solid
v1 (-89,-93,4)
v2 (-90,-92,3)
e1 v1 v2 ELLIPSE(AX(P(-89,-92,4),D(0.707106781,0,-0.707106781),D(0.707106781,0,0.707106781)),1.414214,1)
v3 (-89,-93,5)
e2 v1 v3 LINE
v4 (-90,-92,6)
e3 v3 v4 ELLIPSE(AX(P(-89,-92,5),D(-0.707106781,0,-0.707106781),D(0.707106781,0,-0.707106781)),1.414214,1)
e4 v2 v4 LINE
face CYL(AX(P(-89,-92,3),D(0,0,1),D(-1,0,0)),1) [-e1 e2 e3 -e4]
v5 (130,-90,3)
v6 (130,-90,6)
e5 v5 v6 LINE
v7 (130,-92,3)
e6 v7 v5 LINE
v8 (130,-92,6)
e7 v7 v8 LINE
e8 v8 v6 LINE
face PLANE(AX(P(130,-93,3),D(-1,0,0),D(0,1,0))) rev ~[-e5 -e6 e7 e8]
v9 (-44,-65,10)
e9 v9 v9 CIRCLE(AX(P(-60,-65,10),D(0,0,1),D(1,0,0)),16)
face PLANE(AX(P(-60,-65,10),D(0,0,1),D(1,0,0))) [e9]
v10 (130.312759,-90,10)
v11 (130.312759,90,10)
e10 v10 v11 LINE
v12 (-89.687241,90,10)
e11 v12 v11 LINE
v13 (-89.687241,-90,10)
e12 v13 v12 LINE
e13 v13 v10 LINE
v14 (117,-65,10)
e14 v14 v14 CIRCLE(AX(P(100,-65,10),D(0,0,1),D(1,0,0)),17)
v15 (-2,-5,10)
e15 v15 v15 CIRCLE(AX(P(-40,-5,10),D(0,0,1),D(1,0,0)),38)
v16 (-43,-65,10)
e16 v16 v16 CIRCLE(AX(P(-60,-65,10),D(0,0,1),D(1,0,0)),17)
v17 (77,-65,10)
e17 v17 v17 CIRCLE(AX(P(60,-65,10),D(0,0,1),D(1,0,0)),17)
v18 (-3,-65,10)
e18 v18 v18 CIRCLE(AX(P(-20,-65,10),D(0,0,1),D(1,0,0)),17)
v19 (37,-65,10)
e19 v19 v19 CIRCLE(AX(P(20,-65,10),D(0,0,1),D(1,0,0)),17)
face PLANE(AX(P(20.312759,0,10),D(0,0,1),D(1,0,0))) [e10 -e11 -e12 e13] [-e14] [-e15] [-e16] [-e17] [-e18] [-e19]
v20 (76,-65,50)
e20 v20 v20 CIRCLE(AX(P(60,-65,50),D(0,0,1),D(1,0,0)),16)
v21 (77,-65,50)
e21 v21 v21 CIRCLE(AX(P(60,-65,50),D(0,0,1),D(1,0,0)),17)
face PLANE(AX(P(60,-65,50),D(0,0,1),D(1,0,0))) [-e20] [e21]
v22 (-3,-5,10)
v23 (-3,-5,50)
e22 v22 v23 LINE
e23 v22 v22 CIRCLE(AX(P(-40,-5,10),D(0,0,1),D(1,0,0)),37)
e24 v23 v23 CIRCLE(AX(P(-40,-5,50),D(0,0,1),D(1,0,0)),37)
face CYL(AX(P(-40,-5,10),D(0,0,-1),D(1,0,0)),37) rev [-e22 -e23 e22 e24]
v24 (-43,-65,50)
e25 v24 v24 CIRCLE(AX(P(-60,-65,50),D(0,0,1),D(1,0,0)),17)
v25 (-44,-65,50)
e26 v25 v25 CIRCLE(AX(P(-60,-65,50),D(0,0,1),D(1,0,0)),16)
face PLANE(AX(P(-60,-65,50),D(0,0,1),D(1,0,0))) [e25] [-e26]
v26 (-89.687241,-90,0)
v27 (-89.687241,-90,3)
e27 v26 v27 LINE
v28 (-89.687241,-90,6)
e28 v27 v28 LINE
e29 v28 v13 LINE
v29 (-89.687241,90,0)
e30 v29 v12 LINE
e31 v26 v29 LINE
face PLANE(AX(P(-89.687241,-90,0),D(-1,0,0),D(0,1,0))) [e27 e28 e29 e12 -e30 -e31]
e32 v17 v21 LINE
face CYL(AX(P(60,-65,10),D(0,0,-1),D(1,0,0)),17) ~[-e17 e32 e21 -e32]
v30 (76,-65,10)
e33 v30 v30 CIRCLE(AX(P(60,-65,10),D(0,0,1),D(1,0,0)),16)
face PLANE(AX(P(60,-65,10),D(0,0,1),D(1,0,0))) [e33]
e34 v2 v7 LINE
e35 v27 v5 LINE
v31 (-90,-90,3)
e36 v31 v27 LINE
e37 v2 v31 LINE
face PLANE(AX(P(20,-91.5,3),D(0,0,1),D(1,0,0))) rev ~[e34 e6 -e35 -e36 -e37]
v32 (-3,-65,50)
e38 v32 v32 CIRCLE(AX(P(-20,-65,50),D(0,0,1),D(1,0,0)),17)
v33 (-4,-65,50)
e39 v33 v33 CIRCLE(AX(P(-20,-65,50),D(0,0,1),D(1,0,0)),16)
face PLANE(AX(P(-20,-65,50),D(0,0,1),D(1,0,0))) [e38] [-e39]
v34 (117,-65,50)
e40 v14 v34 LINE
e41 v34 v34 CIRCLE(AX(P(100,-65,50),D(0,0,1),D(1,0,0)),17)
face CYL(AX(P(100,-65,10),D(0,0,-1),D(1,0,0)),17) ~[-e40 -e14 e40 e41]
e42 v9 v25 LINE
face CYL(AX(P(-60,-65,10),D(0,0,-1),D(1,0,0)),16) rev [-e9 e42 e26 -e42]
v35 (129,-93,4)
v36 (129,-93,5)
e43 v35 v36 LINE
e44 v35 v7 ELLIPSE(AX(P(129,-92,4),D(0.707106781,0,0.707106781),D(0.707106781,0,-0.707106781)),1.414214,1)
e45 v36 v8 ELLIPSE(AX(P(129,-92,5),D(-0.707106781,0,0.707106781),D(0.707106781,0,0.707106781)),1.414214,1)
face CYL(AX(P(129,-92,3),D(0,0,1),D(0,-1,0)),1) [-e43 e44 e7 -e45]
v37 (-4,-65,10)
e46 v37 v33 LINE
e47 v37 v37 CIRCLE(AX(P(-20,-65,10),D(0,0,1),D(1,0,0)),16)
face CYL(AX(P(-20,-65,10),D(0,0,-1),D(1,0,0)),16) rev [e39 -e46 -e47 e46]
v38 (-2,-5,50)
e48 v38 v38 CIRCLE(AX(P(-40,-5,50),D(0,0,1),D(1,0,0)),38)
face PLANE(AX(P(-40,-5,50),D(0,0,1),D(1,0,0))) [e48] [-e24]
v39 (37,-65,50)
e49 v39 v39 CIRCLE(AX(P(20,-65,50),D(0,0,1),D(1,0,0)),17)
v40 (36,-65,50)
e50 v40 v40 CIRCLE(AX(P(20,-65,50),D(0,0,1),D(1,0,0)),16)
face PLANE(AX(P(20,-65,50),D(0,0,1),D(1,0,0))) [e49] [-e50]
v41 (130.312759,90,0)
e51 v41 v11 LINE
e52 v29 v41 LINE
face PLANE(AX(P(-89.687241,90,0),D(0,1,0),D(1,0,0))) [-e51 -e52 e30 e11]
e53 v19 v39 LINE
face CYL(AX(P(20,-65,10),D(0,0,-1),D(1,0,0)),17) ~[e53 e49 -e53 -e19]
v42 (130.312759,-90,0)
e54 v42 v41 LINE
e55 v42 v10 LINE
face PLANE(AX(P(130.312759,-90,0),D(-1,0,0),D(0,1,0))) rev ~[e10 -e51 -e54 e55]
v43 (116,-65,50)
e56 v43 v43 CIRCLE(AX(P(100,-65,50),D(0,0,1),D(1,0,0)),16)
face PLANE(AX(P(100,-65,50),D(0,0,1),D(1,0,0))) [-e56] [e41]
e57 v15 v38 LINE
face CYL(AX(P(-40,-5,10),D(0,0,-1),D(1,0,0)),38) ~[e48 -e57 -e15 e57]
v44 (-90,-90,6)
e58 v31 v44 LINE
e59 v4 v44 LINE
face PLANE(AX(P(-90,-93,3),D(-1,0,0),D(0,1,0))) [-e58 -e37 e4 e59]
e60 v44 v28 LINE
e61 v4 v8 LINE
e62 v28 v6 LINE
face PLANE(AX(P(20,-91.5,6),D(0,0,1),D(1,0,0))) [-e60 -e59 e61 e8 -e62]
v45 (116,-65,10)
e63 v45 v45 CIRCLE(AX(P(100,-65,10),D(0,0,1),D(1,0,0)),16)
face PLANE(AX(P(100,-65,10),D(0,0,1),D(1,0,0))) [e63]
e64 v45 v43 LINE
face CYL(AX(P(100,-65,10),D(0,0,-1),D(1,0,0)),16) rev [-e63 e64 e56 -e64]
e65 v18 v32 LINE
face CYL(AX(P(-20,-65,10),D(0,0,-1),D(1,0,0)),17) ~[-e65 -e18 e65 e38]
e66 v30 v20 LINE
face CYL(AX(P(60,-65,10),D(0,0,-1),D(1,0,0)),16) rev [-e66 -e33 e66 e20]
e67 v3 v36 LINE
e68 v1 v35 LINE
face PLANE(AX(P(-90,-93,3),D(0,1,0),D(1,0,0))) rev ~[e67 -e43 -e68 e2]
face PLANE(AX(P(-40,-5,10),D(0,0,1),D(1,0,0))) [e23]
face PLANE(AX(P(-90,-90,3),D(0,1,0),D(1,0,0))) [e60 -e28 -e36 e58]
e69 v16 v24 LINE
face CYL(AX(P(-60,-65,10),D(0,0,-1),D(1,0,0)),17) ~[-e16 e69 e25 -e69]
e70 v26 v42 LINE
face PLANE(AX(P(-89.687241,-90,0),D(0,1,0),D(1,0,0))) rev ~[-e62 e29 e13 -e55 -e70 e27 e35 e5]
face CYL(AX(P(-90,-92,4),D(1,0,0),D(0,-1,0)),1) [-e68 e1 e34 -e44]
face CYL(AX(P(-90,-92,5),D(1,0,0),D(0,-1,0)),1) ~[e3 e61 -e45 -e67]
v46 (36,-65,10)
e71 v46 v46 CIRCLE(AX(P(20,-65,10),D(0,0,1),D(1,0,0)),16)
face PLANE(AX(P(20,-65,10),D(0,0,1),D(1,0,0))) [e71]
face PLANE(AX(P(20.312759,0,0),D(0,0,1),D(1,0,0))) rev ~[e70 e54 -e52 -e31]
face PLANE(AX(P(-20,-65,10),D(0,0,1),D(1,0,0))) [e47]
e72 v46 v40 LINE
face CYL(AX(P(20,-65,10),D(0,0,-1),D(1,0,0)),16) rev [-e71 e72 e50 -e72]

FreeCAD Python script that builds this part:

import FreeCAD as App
import Part
import Sketcher

V = App.Vector
Q = App.Units.Quantity


def edges_at(feature, points):
    """Names of the edges that pass closest to the given points."""
    edges = feature.Shape.Edges
    near = lambda p: min(range(len(edges)), key=lambda i: edges[i].distToShape(Part.Vertex(*p))[0])
    return sorted({f"Edge{near(p) + 1}" for p in points})

doc = App.newDocument("Part")
body = doc.addObject("PartDesign::Body", "Body")

sketch1 = body.newObject("Sketcher::SketchObject", "Sketch")
sketch1.AttachmentSupport = (doc.getObject("XY_Plane"), [""])
sketch1.MapMode = "FlatFace"
sketch1.addGeometry([
    Part.LineSegment(V(-90, 90, 0), V(-90, -90, 0)),
    Part.LineSegment(V(-90, -90, 0), V(130, -90, 0)),
    Part.LineSegment(V(130, -90, 0), V(130, 90, 0)),
    Part.LineSegment(V(130, 90, 0), V(-90, 90, 0)),
], False)
sketch1.addConstraint([
    Sketcher.Constraint("Coincident", 0, 2, 1, 1),
    Sketcher.Constraint("Coincident", 1, 2, 2, 1),
    Sketcher.Constraint("Coincident", 2, 2, 3, 1),
    Sketcher.Constraint("Coincident", 3, 2, 0, 1),
    Sketcher.Constraint("Vertical", 0),
    Sketcher.Constraint("Horizontal", 1),
    Sketcher.Constraint("Vertical", 2),
    Sketcher.Constraint("Horizontal", 3),
    Sketcher.Constraint("DistanceX", 1, 1, 1, 2, Q("220 mm")),
    Sketcher.Constraint("DistanceY", 0, 2, 0, 1, Q("180 mm")),
    Sketcher.Constraint("DistanceY", 0, 2, -1, 1, Q("90 mm")),
    Sketcher.Constraint("DistanceX", 0, 2, -1, 1, Q("89.687241 mm")),
])
pad1 = body.newObject("PartDesign::Pad", "Pad")
pad1.Profile = sketch1
pad1.Length = 10

sketch2 = body.newObject("Sketcher::SketchObject", "Sketch001")
sketch2.AttachmentSupport = (doc.getObject("XY_Plane"), [""])
sketch2.MapMode = "FlatFace"
sketch2.AttachmentOffset = App.Placement(V(0, 0, 3), App.Rotation())
sketch2.addGeometry([
    Part.LineSegment(V(-90, -90, 0), V(-90, -93, 0)),
    Part.LineSegment(V(-90, -93, 0), V(130, -93, 0)),
    Part.LineSegment(V(130, -93, 0), V(130, -90, 0)),
    Part.LineSegment(V(130, -90, 0), V(-90, -90, 0)),
], False)
sketch2.addConstraint([
    Sketcher.Constraint("Coincident", 0, 2, 1, 1),
    Sketcher.Constraint("Coincident", 1, 2, 2, 1),
    Sketcher.Constraint("Coincident", 2, 2, 3, 1),
    Sketcher.Constraint("Coincident", 3, 2, 0, 1),
    Sketcher.Constraint("Vertical", 0),
    Sketcher.Constraint("Horizontal", 1),
    Sketcher.Constraint("Vertical", 2),
    Sketcher.Constraint("Horizontal", 3),
    Sketcher.Constraint("DistanceX", 1, 1, 1, 2, Q("220 mm")),
    Sketcher.Constraint("DistanceY", 0, 2, 0, 1, Q("3 mm")),
    Sketcher.Constraint("DistanceX", 0, 2, -1, 1, Q("90 mm")),
    Sketcher.Constraint("DistanceY", 0, 2, -1, 1, Q("93 mm")),
])
pad2 = body.newObject("PartDesign::Pad", "Pad001")
pad2.Profile = sketch2
pad2.Length = 3
doc.recompute()

fillet = body.newObject("PartDesign::Fillet", "Fillet")
fillet.Base = (pad2, edges_at(pad2, [
    (20, -93, 3),
    (130, -93, 4.5),
    (20, -93, 6),
    (-90, -93, 4.5),
]))
fillet.Radius = 1

sketch3 = body.newObject("Sketcher::SketchObject", "Sketch002")
sketch3.AttachmentSupport = (doc.getObject("XY_Plane"), [""])
sketch3.MapMode = "FlatFace"
sketch3.AttachmentOffset = App.Placement(V(0, 0, 10), App.Rotation())
sketch3.addGeometry(Part.Circle(V(-60, -65, 0), V(0, 0, 1), 17), False)
sketch3.addConstraint([
    Sketcher.Constraint("Diameter", 0, Q("34 mm")),
    Sketcher.Constraint("DistanceX", 0, 3, -1, 1, Q("60 mm")),
    Sketcher.Constraint("DistanceY", 0, 3, -1, 1, Q("65 mm")),
])
pad3 = body.newObject("PartDesign::Pad", "Pad002")
pad3.Profile = sketch3
pad3.Length = 40

sketch4 = body.newObject("Sketcher::SketchObject", "Sketch003")
sketch4.AttachmentSupport = (doc.getObject("XY_Plane"), [""])
sketch4.MapMode = "FlatFace"
sketch4.AttachmentOffset = App.Placement(V(0, 0, 10), App.Rotation())
sketch4.addGeometry(Part.Circle(V(-60, -65, 0), V(0, 0, 1), 16), False)
sketch4.addConstraint([
    Sketcher.Constraint("Diameter", 0, Q("32 mm")),
    Sketcher.Constraint("DistanceX", 0, 3, -1, 1, Q("60 mm")),
    Sketcher.Constraint("DistanceY", 0, 3, -1, 1, Q("65 mm")),
])
pocket1 = body.newObject("PartDesign::Pocket", "Pocket")
pocket1.Profile = sketch4
pocket1.Length = 40
pocket1.Reversed = True

sketch5 = body.newObject("Sketcher::SketchObject", "Sketch004")
sketch5.AttachmentSupport = (doc.getObject("XY_Plane"), [""])
sketch5.MapMode = "FlatFace"
sketch5.AttachmentOffset = App.Placement(V(0, 0, 10), App.Rotation())
sketch5.addGeometry(Part.Circle(V(-20, -65, 0), V(0, 0, 1), 17), False)
sketch5.addConstraint([
    Sketcher.Constraint("Diameter", 0, Q("34 mm")),
    Sketcher.Constraint("DistanceX", 0, 3, -1, 1, Q("20 mm")),
    Sketcher.Constraint("DistanceY", 0, 3, -1, 1, Q("65 mm")),
])
pad4 = body.newObject("PartDesign::Pad", "Pad003")
pad4.Profile = sketch5
pad4.Length = 40

sketch6 = body.newObject("Sketcher::SketchObject", "Sketch005")
sketch6.AttachmentSupport = (doc.getObject("XY_Plane"), [""])
sketch6.MapMode = "FlatFace"
sketch6.AttachmentOffset = App.Placement(V(0, 0, 10), App.Rotation())
sketch6.addGeometry(Part.Circle(V(20, -65, 0), V(0, 0, 1), 17), False)
sketch6.addConstraint([
    Sketcher.Constraint("Diameter", 0, Q("34 mm")),
    Sketcher.Constraint("DistanceX", -1, 1, 0, 3, Q("20 mm")),
    Sketcher.Constraint("DistanceY", 0, 3, -1, 1, Q("65 mm")),
])
pad5 = body.newObject("PartDesign::Pad", "Pad004")
pad5.Profile = sketch6
pad5.Length = 40

sketch7 = body.newObject("Sketcher::SketchObject", "Sketch006")
sketch7.AttachmentSupport = (doc.getObject("XY_Plane"), [""])
sketch7.MapMode = "FlatFace"
sketch7.AttachmentOffset = App.Placement(V(0, 0, 10), App.Rotation())
sketch7.addGeometry(Part.Circle(V(60, -65, 0), V(0, 0, 1), 17), False)
sketch7.addConstraint([
    Sketcher.Constraint("Diameter", 0, Q("34 mm")),
    Sketcher.Constraint("DistanceX", -1, 1, 0, 3, Q("60 mm")),
    Sketcher.Constraint("DistanceY", 0, 3, -1, 1, Q("65 mm")),
])
pad6 = body.newObject("PartDesign::Pad", "Pad005")
pad6.Profile = sketch7
pad6.Length = 40

sketch8 = body.newObject("Sketcher::SketchObject", "Sketch007")
sketch8.AttachmentSupport = (doc.getObject("XY_Plane"), [""])
sketch8.MapMode = "FlatFace"
sketch8.AttachmentOffset = App.Placement(V(0, 0, 10), App.Rotation())
sketch8.addGeometry(Part.Circle(V(100, -65, 0), V(0, 0, 1), 17), False)
sketch8.addConstraint([
    Sketcher.Constraint("Diameter", 0, Q("34 mm")),
    Sketcher.Constraint("DistanceX", -1, 1, 0, 3, Q("100 mm")),
    Sketcher.Constraint("DistanceY", 0, 3, -1, 1, Q("65 mm")),
])
pad7 = body.newObject("PartDesign::Pad", "Pad006")
pad7.Profile = sketch8
pad7.Length = 40

sketch9 = body.newObject("Sketcher::SketchObject", "Sketch008")
sketch9.AttachmentSupport = (doc.getObject("XY_Plane"), [""])
sketch9.MapMode = "FlatFace"
sketch9.AttachmentOffset = App.Placement(V(0, 0, 10), App.Rotation())
sketch9.addGeometry(Part.Circle(V(-20, -65, 0), V(0, 0, 1), 16), False)
sketch9.addConstraint([
    Sketcher.Constraint("Diameter", 0, Q("32 mm")),
    Sketcher.Constraint("DistanceX", 0, 3, -1, 1, Q("20 mm")),
    Sketcher.Constraint("DistanceY", 0, 3, -1, 1, Q("65 mm")),
])
pocket2 = body.newObject("PartDesign::Pocket", "Pocket001")
pocket2.Profile = sketch9
pocket2.Length = 40
pocket2.Reversed = True

sketch10 = body.newObject("Sketcher::SketchObject", "Sketch009")
sketch10.AttachmentSupport = (doc.getObject("XY_Plane"), [""])
sketch10.MapMode = "FlatFace"
sketch10.AttachmentOffset = App.Placement(V(0, 0, 10), App.Rotation())
sketch10.addGeometry(Part.Circle(V(20, -65, 0), V(0, 0, 1), 16), False)
sketch10.addConstraint([
    Sketcher.Constraint("Diameter", 0, Q("32 mm")),
    Sketcher.Constraint("DistanceX", -1, 1, 0, 3, Q("20 mm")),
    Sketcher.Constraint("DistanceY", 0, 3, -1, 1, Q("65 mm")),
])
pocket3 = body.newObject("PartDesign::Pocket", "Pocket002")
pocket3.Profile = sketch10
pocket3.Length = 40
pocket3.Reversed = True

sketch11 = body.newObject("Sketcher::SketchObject", "Sketch010")
sketch11.AttachmentSupport = (doc.getObject("XY_Plane"), [""])
sketch11.MapMode = "FlatFace"
sketch11.AttachmentOffset = App.Placement(V(0, 0, 10), App.Rotation())
sketch11.addGeometry(Part.Circle(V(60, -65, 0), V(0, 0, 1), 16), False)
sketch11.addConstraint([
    Sketcher.Constraint("Diameter", 0, Q("32 mm")),
    Sketcher.Constraint("DistanceX", -1, 1, 0, 3, Q("60 mm")),
    Sketcher.Constraint("DistanceY", 0, 3, -1, 1, Q("65 mm")),
])
pocket4 = body.newObject("PartDesign::Pocket", "Pocket003")
pocket4.Profile = sketch11
pocket4.Length = 40
pocket4.Reversed = True

sketch12 = body.newObject("Sketcher::SketchObject", "Sketch011")
sketch12.AttachmentSupport = (doc.getObject("XY_Plane"), [""])
sketch12.MapMode = "FlatFace"
sketch12.AttachmentOffset = App.Placement(V(0, 0, 10), App.Rotation())
sketch12.addGeometry(Part.Circle(V(100, -65, 0), V(0, 0, 1), 16), False)
sketch12.addConstraint([
    Sketcher.Constraint("Diameter", 0, Q("32 mm")),
    Sketcher.Constraint("DistanceX", -1, 1, 0, 3, Q("100 mm")),
    Sketcher.Constraint("DistanceY", 0, 3, -1, 1, Q("65 mm")),
])
pocket5 = body.newObject("PartDesign::Pocket", "Pocket004")
pocket5.Profile = sketch12
pocket5.Length = 40
pocket5.Reversed = True

sketch13 = body.newObject("Sketcher::SketchObject", "Sketch012")
sketch13.AttachmentSupport = (doc.getObject("XY_Plane"), [""])
sketch13.MapMode = "FlatFace"
sketch13.AttachmentOffset = App.Placement(V(0, 0, 10), App.Rotation())
sketch13.addGeometry(Part.Circle(V(-40, -5, 0), V(0, 0, 1), 38), False)
sketch13.addConstraint([
    Sketcher.Constraint("Diameter", 0, Q("76 mm")),
    Sketcher.Constraint("DistanceX", 0, 3, -1, 1, Q("40 mm")),
    Sketcher.Constraint("DistanceY", 0, 3, -1, 1, Q("5 mm")),
])
pad8 = body.newObject("PartDesign::Pad", "Pad007")
pad8.Profile = sketch13
pad8.Length = 40

sketch14 = body.newObject("Sketcher::SketchObject", "Sketch013")
sketch14.AttachmentSupport = (doc.getObject("XY_Plane"), [""])
sketch14.MapMode = "FlatFace"
sketch14.AttachmentOffset = App.Placement(V(0, 0, 10), App.Rotation())
sketch14.addGeometry(Part.Circle(V(-40, -5, 0), V(0, 0, 1), 37), False)
sketch14.addConstraint([
    Sketcher.Constraint("Diameter", 0, Q("74 mm")),
    Sketcher.Constraint("DistanceX", 0, 3, -1, 1, Q("40 mm")),
    Sketcher.Constraint("DistanceY", 0, 3, -1, 1, Q("5 mm")),
])
pocket6 = body.newObject("PartDesign::Pocket", "Pocket005")
pocket6.Profile = sketch14
pocket6.Length = 40
pocket6.Reversed = True

doc.recompute()
